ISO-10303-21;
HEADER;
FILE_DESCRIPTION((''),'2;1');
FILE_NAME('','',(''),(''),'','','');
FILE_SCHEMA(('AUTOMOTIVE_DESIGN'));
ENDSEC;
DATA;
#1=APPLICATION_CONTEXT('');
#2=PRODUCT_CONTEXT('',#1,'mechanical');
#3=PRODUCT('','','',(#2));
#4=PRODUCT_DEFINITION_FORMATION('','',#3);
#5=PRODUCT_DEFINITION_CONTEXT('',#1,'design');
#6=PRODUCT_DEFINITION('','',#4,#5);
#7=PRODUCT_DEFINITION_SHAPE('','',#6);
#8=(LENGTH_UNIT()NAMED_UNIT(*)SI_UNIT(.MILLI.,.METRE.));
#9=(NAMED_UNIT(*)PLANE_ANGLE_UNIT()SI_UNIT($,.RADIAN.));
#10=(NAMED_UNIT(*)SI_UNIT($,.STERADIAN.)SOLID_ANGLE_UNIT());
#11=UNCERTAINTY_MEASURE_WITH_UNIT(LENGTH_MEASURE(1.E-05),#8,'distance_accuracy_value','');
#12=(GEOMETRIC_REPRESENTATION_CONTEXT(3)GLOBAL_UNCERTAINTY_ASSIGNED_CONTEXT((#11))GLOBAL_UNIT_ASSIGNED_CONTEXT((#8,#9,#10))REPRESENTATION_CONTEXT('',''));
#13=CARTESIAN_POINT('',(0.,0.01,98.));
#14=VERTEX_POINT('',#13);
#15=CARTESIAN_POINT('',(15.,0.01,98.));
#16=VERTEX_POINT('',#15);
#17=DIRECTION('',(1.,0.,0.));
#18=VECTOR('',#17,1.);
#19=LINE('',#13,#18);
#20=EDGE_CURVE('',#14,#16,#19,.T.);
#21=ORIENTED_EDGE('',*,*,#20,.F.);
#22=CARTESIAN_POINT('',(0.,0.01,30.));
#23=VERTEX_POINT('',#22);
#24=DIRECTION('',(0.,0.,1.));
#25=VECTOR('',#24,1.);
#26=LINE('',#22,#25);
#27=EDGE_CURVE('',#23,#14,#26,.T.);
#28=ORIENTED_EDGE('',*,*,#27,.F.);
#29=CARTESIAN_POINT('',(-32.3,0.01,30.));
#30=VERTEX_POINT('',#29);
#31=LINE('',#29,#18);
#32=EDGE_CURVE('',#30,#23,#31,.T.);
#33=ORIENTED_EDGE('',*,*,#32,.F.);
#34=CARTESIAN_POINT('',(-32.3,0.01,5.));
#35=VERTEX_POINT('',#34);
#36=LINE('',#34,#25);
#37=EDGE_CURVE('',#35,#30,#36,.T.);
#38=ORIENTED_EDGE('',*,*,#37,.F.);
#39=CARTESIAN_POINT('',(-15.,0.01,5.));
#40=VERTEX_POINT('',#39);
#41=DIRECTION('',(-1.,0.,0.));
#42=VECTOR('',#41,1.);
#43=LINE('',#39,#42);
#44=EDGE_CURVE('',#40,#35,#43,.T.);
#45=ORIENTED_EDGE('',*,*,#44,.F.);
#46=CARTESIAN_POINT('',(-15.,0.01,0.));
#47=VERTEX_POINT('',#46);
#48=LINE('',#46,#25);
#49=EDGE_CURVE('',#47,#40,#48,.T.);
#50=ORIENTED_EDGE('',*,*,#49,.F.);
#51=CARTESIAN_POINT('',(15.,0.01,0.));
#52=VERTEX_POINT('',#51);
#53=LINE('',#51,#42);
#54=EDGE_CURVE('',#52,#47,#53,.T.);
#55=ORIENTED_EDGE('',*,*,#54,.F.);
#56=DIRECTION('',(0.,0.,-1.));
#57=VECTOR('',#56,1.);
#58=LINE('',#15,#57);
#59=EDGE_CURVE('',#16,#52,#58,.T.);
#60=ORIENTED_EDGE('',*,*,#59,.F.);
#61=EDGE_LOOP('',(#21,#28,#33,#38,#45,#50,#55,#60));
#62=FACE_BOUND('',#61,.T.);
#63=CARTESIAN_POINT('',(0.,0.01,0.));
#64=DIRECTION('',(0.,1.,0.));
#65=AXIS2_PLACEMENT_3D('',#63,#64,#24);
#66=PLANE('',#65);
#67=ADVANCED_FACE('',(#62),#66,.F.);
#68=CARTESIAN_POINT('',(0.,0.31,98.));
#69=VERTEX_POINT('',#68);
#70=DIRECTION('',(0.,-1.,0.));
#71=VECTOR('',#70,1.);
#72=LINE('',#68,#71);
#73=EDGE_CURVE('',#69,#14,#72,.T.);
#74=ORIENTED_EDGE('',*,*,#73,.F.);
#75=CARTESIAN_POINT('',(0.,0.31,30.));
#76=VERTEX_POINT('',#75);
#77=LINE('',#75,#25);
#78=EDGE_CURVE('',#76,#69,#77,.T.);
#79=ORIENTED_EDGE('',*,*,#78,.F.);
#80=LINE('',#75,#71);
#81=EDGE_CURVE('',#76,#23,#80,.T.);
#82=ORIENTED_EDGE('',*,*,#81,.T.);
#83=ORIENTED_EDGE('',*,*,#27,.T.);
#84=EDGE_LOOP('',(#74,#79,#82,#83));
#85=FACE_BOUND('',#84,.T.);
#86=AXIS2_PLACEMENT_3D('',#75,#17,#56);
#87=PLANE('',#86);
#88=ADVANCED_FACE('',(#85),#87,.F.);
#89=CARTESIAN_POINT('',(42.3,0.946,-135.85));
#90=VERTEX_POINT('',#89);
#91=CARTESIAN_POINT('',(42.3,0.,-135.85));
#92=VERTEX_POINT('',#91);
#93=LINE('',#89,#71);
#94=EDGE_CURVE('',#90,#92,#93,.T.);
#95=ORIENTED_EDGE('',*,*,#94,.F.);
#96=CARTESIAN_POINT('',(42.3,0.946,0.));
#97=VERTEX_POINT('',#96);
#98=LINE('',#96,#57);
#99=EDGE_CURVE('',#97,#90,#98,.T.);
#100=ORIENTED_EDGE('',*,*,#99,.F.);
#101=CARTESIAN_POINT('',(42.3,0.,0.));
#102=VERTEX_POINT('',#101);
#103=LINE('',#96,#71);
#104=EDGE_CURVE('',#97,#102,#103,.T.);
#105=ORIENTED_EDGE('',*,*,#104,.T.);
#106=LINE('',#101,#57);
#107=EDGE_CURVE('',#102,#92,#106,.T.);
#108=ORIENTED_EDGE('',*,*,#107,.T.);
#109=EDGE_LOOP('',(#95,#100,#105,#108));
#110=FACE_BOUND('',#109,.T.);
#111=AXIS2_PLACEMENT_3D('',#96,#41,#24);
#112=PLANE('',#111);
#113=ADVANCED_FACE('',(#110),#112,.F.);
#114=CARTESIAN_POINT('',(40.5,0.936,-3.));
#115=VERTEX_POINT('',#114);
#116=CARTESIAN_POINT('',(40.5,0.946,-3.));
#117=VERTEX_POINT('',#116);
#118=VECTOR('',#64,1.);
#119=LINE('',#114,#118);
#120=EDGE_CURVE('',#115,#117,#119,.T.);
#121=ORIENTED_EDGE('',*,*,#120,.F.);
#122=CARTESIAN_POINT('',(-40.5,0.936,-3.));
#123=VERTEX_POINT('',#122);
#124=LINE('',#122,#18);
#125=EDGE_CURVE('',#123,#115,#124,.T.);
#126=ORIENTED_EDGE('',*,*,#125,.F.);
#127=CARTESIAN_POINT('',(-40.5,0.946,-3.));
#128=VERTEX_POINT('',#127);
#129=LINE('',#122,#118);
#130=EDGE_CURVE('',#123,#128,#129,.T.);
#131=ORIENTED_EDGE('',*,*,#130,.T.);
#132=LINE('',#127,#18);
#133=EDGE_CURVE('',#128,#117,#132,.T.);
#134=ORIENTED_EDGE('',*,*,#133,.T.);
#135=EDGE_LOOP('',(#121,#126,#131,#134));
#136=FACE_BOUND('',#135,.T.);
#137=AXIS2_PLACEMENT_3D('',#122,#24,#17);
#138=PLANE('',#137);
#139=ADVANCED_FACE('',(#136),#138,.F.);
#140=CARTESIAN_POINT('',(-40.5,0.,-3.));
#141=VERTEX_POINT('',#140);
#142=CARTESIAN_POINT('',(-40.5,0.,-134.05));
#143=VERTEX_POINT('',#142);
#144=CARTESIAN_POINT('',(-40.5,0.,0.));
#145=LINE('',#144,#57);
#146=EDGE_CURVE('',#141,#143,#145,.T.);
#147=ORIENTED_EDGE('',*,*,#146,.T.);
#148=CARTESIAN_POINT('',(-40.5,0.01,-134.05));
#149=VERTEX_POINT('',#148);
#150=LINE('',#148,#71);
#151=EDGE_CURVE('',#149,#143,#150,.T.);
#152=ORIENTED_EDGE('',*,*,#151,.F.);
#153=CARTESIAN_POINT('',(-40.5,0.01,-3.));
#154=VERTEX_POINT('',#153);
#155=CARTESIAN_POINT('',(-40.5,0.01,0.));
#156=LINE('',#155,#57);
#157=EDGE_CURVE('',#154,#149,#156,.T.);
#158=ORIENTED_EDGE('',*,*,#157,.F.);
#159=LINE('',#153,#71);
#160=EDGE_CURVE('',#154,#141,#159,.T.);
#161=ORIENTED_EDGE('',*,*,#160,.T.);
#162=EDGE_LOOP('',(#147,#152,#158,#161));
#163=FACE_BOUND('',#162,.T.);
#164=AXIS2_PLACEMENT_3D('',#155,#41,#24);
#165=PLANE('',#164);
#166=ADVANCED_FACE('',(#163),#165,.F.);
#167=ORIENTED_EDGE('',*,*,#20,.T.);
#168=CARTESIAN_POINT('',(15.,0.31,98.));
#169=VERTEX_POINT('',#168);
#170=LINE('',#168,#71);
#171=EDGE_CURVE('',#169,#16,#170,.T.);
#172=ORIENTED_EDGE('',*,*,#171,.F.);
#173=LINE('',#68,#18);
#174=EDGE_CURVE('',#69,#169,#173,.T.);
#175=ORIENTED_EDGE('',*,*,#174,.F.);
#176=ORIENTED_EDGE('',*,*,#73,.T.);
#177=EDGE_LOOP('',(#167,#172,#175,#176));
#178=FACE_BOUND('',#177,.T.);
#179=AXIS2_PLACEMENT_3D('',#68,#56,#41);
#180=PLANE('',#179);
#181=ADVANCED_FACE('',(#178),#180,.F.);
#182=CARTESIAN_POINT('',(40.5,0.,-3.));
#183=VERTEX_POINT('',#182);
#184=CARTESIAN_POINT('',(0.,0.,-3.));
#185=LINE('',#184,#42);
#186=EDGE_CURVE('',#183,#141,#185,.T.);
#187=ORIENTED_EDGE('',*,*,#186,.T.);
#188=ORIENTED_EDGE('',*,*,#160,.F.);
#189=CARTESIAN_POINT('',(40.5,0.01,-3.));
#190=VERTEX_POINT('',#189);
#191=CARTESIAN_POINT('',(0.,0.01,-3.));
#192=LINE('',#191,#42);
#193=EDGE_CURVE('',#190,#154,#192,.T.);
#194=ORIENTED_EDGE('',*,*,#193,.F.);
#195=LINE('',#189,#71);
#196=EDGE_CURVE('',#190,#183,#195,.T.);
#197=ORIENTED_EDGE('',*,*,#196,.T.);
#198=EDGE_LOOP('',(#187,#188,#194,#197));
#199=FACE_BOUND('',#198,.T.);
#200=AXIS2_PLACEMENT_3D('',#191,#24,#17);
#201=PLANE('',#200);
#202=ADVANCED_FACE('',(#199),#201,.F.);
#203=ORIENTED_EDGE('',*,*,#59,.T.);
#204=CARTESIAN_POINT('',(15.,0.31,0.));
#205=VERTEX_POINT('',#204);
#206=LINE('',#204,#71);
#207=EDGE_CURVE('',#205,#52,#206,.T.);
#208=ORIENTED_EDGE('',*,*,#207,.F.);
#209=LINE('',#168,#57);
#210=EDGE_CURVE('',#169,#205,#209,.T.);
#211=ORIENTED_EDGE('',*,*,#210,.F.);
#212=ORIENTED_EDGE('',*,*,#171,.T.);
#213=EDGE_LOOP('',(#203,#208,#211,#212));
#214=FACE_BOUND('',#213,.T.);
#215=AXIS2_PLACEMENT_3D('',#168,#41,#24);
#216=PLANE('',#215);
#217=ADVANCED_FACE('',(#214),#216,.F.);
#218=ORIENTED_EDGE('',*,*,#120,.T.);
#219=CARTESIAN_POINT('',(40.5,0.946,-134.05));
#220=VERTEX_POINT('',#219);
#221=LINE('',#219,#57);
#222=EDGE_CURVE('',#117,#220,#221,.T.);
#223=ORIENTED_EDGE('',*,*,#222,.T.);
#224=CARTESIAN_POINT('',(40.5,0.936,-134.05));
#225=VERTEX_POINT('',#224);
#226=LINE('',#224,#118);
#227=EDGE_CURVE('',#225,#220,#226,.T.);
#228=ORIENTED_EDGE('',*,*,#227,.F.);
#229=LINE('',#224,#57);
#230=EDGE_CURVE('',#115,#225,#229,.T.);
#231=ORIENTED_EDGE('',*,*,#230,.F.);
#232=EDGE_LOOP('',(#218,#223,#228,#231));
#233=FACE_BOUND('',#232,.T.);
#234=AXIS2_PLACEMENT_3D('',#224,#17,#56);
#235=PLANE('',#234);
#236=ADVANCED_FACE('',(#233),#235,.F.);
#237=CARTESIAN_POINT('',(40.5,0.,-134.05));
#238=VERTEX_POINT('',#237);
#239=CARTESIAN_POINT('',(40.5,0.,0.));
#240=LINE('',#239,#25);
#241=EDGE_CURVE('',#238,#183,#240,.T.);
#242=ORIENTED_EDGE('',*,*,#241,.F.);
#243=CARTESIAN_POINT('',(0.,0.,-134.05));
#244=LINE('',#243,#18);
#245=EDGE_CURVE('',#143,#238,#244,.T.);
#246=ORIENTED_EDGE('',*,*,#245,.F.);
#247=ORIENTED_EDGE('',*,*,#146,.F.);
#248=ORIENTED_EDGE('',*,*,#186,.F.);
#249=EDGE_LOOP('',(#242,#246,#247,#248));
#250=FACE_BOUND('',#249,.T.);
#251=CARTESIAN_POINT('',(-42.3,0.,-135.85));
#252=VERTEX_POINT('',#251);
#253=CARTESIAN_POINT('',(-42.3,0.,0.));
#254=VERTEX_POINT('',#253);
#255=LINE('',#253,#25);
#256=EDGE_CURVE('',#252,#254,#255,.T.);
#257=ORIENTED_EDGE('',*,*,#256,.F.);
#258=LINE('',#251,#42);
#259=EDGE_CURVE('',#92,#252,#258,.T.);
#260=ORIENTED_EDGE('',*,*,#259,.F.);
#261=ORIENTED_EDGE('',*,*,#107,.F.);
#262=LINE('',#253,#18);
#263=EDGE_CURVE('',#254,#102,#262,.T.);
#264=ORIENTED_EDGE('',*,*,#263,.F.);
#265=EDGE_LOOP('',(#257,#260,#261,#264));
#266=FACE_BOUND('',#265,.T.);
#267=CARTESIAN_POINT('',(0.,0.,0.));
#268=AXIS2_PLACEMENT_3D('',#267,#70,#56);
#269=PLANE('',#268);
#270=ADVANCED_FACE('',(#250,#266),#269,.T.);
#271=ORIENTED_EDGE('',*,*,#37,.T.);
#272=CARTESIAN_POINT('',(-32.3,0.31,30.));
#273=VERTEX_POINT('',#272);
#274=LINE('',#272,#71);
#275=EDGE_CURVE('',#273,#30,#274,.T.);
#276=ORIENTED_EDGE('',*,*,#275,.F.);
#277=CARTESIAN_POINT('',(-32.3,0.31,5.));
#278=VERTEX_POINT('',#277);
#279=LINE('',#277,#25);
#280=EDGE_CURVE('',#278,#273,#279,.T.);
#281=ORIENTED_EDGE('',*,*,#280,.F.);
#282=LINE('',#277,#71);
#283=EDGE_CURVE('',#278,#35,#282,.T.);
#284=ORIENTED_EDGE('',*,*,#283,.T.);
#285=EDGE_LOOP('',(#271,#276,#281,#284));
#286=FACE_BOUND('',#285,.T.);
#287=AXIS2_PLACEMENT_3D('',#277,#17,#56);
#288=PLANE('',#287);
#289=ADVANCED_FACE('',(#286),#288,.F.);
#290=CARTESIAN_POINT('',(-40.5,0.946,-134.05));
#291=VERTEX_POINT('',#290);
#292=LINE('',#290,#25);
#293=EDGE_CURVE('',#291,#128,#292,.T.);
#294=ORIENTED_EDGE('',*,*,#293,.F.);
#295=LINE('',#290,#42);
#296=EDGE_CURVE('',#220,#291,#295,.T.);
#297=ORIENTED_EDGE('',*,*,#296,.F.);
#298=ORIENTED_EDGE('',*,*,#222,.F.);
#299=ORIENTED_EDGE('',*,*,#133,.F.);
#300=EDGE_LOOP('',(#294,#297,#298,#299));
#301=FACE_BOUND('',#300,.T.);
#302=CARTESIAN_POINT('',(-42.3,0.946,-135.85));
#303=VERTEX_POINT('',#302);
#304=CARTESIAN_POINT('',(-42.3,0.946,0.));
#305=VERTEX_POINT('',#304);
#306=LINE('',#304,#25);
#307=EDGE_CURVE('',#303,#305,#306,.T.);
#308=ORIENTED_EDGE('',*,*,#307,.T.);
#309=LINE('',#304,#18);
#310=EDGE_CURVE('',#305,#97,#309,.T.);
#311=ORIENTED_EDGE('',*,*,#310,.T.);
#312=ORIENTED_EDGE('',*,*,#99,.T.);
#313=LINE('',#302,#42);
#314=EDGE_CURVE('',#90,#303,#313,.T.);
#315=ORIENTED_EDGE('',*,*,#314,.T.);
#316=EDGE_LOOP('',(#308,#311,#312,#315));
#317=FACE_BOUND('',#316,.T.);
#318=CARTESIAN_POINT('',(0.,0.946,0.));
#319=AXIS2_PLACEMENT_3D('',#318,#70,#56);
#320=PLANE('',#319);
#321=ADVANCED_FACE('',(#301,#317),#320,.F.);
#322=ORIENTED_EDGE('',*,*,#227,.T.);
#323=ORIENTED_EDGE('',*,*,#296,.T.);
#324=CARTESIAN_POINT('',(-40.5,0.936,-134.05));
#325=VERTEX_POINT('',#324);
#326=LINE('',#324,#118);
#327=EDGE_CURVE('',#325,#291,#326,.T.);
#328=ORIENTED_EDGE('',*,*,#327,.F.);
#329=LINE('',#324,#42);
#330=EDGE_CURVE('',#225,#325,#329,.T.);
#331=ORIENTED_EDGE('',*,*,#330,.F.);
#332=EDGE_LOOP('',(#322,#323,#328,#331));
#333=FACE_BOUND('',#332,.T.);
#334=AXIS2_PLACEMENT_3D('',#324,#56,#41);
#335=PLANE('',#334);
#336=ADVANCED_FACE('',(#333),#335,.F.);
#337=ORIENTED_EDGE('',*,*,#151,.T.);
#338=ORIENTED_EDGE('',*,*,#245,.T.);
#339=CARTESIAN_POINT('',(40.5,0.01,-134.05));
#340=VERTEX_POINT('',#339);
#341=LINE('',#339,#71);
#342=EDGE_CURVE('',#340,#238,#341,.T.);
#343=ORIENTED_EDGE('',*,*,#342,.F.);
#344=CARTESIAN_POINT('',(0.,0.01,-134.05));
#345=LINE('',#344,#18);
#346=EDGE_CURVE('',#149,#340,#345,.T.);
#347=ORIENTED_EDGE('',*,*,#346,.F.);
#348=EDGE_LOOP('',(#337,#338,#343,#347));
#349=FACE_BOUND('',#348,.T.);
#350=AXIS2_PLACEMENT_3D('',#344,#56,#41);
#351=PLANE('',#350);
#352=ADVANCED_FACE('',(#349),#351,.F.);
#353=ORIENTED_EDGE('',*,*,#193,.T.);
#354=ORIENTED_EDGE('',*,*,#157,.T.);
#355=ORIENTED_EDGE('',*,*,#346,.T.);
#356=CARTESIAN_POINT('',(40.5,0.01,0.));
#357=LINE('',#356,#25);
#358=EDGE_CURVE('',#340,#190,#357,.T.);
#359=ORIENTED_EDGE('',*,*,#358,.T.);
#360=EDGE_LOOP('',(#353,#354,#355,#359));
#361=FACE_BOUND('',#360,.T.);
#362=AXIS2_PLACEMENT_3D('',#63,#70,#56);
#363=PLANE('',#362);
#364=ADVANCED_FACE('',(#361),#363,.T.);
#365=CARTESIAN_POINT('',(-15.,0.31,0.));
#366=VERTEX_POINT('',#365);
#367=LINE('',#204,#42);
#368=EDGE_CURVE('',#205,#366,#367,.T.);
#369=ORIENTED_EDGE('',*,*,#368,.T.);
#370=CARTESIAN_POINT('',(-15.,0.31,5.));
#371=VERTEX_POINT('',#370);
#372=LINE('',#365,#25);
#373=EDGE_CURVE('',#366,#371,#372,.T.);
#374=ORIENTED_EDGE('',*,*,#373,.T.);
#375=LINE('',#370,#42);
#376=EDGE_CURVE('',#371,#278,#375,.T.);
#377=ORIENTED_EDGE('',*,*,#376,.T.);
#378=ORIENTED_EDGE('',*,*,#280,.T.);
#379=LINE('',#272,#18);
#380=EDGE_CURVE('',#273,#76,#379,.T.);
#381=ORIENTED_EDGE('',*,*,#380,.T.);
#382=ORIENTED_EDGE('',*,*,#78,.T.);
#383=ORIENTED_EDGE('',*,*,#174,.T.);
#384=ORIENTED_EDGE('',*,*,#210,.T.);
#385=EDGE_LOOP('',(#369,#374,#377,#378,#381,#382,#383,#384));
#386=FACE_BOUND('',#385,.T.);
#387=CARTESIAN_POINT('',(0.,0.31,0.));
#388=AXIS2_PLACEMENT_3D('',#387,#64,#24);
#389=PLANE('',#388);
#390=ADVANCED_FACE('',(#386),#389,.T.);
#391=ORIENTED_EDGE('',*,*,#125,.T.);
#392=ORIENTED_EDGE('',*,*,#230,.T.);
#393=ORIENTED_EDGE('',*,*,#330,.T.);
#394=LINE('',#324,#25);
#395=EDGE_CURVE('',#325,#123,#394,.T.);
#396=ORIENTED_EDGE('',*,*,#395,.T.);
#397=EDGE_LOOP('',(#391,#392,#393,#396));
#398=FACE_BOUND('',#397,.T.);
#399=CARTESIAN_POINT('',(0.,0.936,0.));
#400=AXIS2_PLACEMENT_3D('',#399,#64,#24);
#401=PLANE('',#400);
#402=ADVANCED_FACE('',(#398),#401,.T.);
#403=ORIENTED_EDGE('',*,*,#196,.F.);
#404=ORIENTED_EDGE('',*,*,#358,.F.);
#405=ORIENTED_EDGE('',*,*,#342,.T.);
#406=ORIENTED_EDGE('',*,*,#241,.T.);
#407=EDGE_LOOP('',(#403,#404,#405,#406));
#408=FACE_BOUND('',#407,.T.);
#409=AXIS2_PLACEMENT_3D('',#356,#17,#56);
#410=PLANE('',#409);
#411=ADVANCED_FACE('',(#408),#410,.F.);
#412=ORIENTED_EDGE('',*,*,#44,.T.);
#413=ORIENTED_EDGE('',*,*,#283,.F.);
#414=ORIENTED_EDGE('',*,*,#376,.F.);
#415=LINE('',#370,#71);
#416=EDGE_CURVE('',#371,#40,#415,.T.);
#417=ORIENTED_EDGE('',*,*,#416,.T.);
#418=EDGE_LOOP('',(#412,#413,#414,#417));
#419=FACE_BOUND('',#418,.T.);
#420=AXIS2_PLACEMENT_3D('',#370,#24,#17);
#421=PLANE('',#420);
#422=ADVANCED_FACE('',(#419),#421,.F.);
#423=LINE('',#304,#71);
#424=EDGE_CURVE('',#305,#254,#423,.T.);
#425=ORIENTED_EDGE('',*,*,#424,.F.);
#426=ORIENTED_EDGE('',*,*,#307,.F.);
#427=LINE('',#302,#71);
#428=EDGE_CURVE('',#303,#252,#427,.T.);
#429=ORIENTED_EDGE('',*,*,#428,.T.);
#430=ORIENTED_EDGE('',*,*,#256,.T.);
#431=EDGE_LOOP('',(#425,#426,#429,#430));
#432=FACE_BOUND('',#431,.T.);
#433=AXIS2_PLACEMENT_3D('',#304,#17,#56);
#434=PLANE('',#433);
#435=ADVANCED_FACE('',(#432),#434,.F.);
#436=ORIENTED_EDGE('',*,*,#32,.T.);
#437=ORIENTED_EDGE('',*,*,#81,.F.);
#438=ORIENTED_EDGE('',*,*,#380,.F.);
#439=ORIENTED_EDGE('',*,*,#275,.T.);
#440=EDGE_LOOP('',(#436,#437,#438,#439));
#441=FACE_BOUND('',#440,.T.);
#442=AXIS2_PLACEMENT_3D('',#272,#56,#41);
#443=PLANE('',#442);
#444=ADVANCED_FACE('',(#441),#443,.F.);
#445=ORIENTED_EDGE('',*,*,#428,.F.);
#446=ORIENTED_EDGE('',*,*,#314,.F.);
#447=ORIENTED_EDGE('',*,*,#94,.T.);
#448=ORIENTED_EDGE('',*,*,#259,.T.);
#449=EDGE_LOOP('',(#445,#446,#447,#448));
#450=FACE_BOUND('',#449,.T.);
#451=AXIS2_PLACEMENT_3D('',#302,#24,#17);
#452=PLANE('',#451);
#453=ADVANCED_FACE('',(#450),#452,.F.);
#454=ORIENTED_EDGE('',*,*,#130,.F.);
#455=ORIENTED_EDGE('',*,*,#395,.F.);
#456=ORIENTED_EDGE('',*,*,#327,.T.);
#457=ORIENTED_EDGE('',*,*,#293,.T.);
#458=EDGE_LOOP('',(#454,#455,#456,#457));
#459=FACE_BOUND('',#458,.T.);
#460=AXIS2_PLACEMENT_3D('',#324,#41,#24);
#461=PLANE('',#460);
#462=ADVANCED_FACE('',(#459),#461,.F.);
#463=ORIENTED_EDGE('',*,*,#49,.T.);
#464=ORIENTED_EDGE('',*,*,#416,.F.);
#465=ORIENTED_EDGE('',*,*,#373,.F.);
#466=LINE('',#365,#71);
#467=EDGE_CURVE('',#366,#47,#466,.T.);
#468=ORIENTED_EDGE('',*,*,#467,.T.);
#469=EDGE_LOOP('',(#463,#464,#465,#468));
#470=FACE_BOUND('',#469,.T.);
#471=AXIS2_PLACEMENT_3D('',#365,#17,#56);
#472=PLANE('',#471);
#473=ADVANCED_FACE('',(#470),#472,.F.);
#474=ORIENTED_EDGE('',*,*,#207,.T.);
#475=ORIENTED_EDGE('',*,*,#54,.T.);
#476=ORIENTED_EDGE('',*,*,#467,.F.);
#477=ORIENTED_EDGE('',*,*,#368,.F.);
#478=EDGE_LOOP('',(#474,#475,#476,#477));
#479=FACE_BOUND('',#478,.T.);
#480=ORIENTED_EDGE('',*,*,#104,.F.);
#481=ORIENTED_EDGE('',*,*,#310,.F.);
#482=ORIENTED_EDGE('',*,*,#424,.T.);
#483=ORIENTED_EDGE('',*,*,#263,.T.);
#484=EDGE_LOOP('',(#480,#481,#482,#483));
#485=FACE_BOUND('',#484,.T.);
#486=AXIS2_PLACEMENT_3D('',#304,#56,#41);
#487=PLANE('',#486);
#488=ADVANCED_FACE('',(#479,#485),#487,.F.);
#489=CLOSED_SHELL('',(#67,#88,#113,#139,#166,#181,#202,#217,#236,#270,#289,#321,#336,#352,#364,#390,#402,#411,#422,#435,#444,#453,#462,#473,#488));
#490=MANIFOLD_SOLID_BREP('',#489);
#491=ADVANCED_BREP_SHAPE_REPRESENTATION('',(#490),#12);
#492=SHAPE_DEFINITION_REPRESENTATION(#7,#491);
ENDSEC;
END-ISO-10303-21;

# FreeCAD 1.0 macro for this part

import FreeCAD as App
import Part
import Sketcher

V = App.Vector


def add_polygon(sketch, points):
    """Adds a closed chain of lines whose ends are joined by coincident constraints."""
    first, n = sketch.GeometryCount, len(points)
    for a, b in zip(points, points[1:] + points[:1]):
        sketch.addGeometry(Part.LineSegment(App.Vector(*a, 0), App.Vector(*b, 0)), False)
    for i in range(n):
        sketch.addConstraint(Sketcher.Constraint("Coincident", first + i, 2, first + (i + 1) % n, 1))

doc = App.newDocument("Part")
body = doc.addObject("PartDesign::Body", "Body")

# Sketch on XZ plane
sketch1 = body.newObject("Sketcher::SketchObject", "Sketch")
sketch1.AttachmentSupport = (doc.getObject("XZ_Plane"), [""])
sketch1.MapMode = "FlatFace"
add_polygon(sketch1, [(-42, -136), (-42, 0), (42, 0), (42, -136)])  # lines 0-3
sketch1.addConstraint(Sketcher.Constraint("Vertical", 0))
sketch1.addConstraint(Sketcher.Constraint("Horizontal", 1))
sketch1.addConstraint(Sketcher.Constraint("Vertical", 2))
sketch1.addConstraint(Sketcher.Constraint("Horizontal", 3))
sketch1.addConstraint(Sketcher.Constraint("Symmetric", 0, 2, 1, 2, -1, 1))
sketch1.addConstraint(Sketcher.Constraint("DistanceX", 1, 1, 1, 2, 84.6))
sketch1.addConstraint(Sketcher.Constraint("DistanceY", 0, 1, 0, 2, 135.85))
pad1 = body.newObject("PartDesign::Pad", "Pad")
pad1.Profile = sketch1
pad1.Length = 0.946
pad1.Reversed = True

# Sketch on XZ plane
sketch2 = body.newObject("Sketcher::SketchObject", "Sketch001")
sketch2.AttachmentSupport = (doc.getObject("XZ_Plane"), [""])
sketch2.MapMode = "FlatFace"
sketch2.AttachmentOffset = App.Placement(V(0, 0, -0.01), App.Rotation())
add_polygon(sketch2, [(-15, 0), (-15, 5), (-32, 5), (-32, 30), (0, 30), (0, 98), (15, 98), (15, 0)])  # lines 0-7
sketch2.addConstraint(Sketcher.Constraint("Vertical", 0))
sketch2.addConstraint(Sketcher.Constraint("Horizontal", 1))
sketch2.addConstraint(Sketcher.Constraint("Vertical", 2))
sketch2.addConstraint(Sketcher.Constraint("Horizontal", 3))
sketch2.addConstraint(Sketcher.Constraint("Vertical", 4))
sketch2.addConstraint(Sketcher.Constraint("Horizontal", 5))
sketch2.addConstraint(Sketcher.Constraint("Vertical", 6))
sketch2.addConstraint(Sketcher.Constraint("Horizontal", 7))
sketch2.addConstraint(Sketcher.Constraint("Symmetric", 6, 2, 7, 2, -1, 1))
sketch2.addConstraint(Sketcher.Constraint("PointOnObject", 3, 2, -2))
sketch2.addConstraint(Sketcher.Constraint("DistanceX", 5, 1, 5, 2, 15.0))
sketch2.addConstraint(Sketcher.Constraint("DistanceY", 0, 1, 0, 2, 5.0))
sketch2.addConstraint(Sketcher.Constraint("DistanceY", 2, 1, 2, 2, 25.0))
sketch2.addConstraint(Sketcher.Constraint("DistanceY", 4, 1, 4, 2, 68.0))
sketch2.addConstraint(Sketcher.Constraint("DistanceX", 1, 2, 1, 1, 17.3))
pad2 = body.newObject("PartDesign::Pad", "Pad001")
pad2.Profile = sketch2
pad2.Length = 0.3
pad2.Reversed = True

# Sketch on XZ plane
sketch3 = body.newObject("Sketcher::SketchObject", "Sketch002")
sketch3.AttachmentSupport = (doc.getObject("XZ_Plane"), [""])
sketch3.MapMode = "FlatFace"
sketch3.AttachmentOffset = App.Placement(V(0, 0, -0.946), App.Rotation())
add_polygon(sketch3, [(-40, -134), (-40, -3), (40, -3), (40, -134)])  # lines 0-3
sketch3.addConstraint(Sketcher.Constraint("Vertical", 0))
sketch3.addConstraint(Sketcher.Constraint("Horizontal", 1))
sketch3.addConstraint(Sketcher.Constraint("Vertical", 2))
sketch3.addConstraint(Sketcher.Constraint("Horizontal", 3))
sketch3.addConstraint(Sketcher.Constraint("DistanceX", 1, 1, 1, 2, 81.0))
sketch3.addConstraint(Sketcher.Constraint("DistanceY", 0, 2, -1, 1, 3.0))
sketch3.addConstraint(Sketcher.Constraint("DistanceY", 0, 1, 0, 2, 131.05))
sketch3.addConstraint(Sketcher.Constraint("DistanceX", 0, 2, -1, 1, 40.5))
pocket1 = body.newObject("PartDesign::Pocket", "Pocket")
pocket1.Profile = sketch3
pocket1.Length = 0.01
pocket1.Reversed = True

# Sketch on XZ plane
sketch4 = body.newObject("Sketcher::SketchObject", "Sketch003")
sketch4.AttachmentSupport = (doc.getObject("XZ_Plane"), [""])
sketch4.MapMode = "FlatFace"
add_polygon(sketch4, [(-40, -134), (-40, -3), (40, -3), (40, -134)])  # lines 0-3
sketch4.addConstraint(Sketcher.Constraint("Vertical", 0))
sketch4.addConstraint(Sketcher.Constraint("Horizontal", 1))
sketch4.addConstraint(Sketcher.Constraint("Vertical", 2))
sketch4.addConstraint(Sketcher.Constraint("Horizontal", 3))
sketch4.addConstraint(Sketcher.Constraint("DistanceX", 1, 1, 1, 2, 81.0))
sketch4.addConstraint(Sketcher.Constraint("DistanceY", 0, 2, -1, 1, 3.0))
sketch4.addConstraint(Sketcher.Constraint("DistanceY", 0, 1, 0, 2, 131.05))
sketch4.addConstraint(Sketcher.Constraint("DistanceX", 0, 2, -1, 1, 40.5))
pocket2 = body.newObject("PartDesign::Pocket", "Pocket001")
pocket2.Profile = sketch4
pocket2.Length = 0.01

doc.recompute()
